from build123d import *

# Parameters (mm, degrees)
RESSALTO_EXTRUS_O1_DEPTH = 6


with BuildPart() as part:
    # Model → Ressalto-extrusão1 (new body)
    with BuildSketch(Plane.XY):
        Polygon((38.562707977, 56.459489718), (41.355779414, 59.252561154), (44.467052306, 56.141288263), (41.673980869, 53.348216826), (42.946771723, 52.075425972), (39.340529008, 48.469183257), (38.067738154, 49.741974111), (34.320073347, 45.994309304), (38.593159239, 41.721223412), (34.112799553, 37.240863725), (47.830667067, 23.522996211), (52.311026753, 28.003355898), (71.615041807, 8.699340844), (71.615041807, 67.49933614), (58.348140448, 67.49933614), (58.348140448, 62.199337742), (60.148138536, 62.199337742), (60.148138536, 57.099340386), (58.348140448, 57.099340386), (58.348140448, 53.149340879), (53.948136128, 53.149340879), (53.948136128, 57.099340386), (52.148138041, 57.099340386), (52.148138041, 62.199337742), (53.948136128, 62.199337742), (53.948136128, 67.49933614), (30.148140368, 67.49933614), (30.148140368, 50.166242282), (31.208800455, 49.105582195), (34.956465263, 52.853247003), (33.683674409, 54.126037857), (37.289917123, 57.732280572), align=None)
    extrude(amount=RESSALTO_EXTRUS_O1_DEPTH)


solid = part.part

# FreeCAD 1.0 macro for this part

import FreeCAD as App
import Part
import Sketcher
Q = App.Units.Quantity

doc = App.newDocument("Part")
body = doc.addObject("PartDesign::Body", "Body")

# Sketch on XY plane
sketch1 = body.newObject("Sketcher::SketchObject", "Sketch")
sketch1.AttachmentSupport = (doc.getObject("XY_Plane"), [""])
sketch1.MapMode = "FlatFace"
sketch1.addGeometry([
    Part.LineSegment(App.Vector(38.6, 56.5, 0), App.Vector(41.4, 59.3, 0)),  # 0
    Part.LineSegment(App.Vector(41.4, 59.3, 0), App.Vector(44.5, 56.1, 0)),  # 1
    Part.LineSegment(App.Vector(44.5, 56.1, 0), App.Vector(41.7, 53.3, 0)),  # 2
    Part.LineSegment(App.Vector(41.7, 53.3, 0), App.Vector(42.9, 52.1, 0)),  # 3
    Part.LineSegment(App.Vector(42.9, 52.1, 0), App.Vector(39.3, 48.5, 0)),  # 4
    Part.LineSegment(App.Vector(39.3, 48.5, 0), App.Vector(38.1, 49.7, 0)),  # 5
    Part.LineSegment(App.Vector(38.1, 49.7, 0), App.Vector(34.3, 46, 0)),  # 6
    Part.LineSegment(App.Vector(34.3, 46, 0), App.Vector(38.6, 41.7, 0)),  # 7
    Part.LineSegment(App.Vector(38.6, 41.7, 0), App.Vector(34.1, 37.2, 0)),  # 8
    Part.LineSegment(App.Vector(34.1, 37.2, 0), App.Vector(47.8, 23.5, 0)),  # 9
    Part.LineSegment(App.Vector(47.8, 23.5, 0), App.Vector(52.3, 28, 0)),  # 10
    Part.LineSegment(App.Vector(52.3, 28, 0), App.Vector(71.6, 8.7, 0)),  # 11
    Part.LineSegment(App.Vector(71.6, 8.7, 0), App.Vector(71.6, 67.5, 0)),  # 12
    Part.LineSegment(App.Vector(71.6, 67.5, 0), App.Vector(58.3, 67.5, 0)),  # 13
    Part.LineSegment(App.Vector(58.3, 67.5, 0), App.Vector(58.3, 62.2, 0)),  # 14
    Part.LineSegment(App.Vector(58.3, 62.2, 0), App.Vector(60.1, 62.2, 0)),  # 15
    Part.LineSegment(App.Vector(60.1, 62.2, 0), App.Vector(60.1, 57.1, 0)),  # 16
    Part.LineSegment(App.Vector(60.1, 57.1, 0), App.Vector(58.3, 57.1, 0)),  # 17
    Part.LineSegment(App.Vector(58.3, 57.1, 0), App.Vector(58.3, 53.1, 0)),  # 18
    Part.LineSegment(App.Vector(58.3, 53.1, 0), App.Vector(53.9, 53.1, 0)),  # 19
    Part.LineSegment(App.Vector(53.9, 53.1, 0), App.Vector(53.9, 57.1, 0)),  # 20
    Part.LineSegment(App.Vector(53.9, 57.1, 0), App.Vector(52.1, 57.1, 0)),  # 21
    Part.LineSegment(App.Vector(52.1, 57.1, 0), App.Vector(52.1, 62.2, 0)),  # 22
    Part.LineSegment(App.Vector(52.1, 62.2, 0), App.Vector(53.9, 62.2, 0)),  # 23
    Part.LineSegment(App.Vector(53.9, 62.2, 0), App.Vector(53.9, 67.5, 0)),  # 24
    Part.LineSegment(App.Vector(53.9, 67.5, 0), App.Vector(30.1, 67.5, 0)),  # 25
    Part.LineSegment(App.Vector(30.1, 67.5, 0), App.Vector(30.1, 50.2, 0)),  # 26
    Part.LineSegment(App.Vector(30.1, 50.2, 0), App.Vector(31.2, 49.1, 0)),  # 27
    Part.LineSegment(App.Vector(31.2, 49.1, 0), App.Vector(35, 52.9, 0)),  # 28
    Part.LineSegment(App.Vector(35, 52.9, 0), App.Vector(33.7, 54.1, 0)),  # 29
    Part.LineSegment(App.Vector(33.7, 54.1, 0), App.Vector(37.3, 57.7, 0)),  # 30
    Part.LineSegment(App.Vector(37.3, 57.7, 0), App.Vector(38.6, 56.5, 0)),  # 31
], False)
sketch1.addConstraint([
    Sketcher.Constraint("Coincident", 0, 2, 1, 1),
    Sketcher.Constraint("Coincident", 1, 2, 2, 1),
    Sketcher.Constraint("Coincident", 2, 2, 3, 1),
    Sketcher.Constraint("Coincident", 3, 2, 4, 1),
    Sketcher.Constraint("Coincident", 4, 2, 5, 1),
    Sketcher.Constraint("Coincident", 5, 2, 6, 1),
    Sketcher.Constraint("Coincident", 6, 2, 7, 1),
    Sketcher.Constraint("Coincident", 7, 2, 8, 1),
    Sketcher.Constraint("Coincident", 8, 2, 9, 1),
    Sketcher.Constraint("Coincident", 9, 2, 10, 1),
    Sketcher.Constraint("Coincident", 10, 2, 11, 1),
    Sketcher.Constraint("Coincident", 11, 2, 12, 1),
    Sketcher.Constraint("Coincident", 12, 2, 13, 1),
    Sketcher.Constraint("Coincident", 13, 2, 14, 1),
    Sketcher.Constraint("Coincident", 14, 2, 15, 1),
    Sketcher.Constraint("Coincident", 15, 2, 16, 1),
    Sketcher.Constraint("Coincident", 16, 2, 17, 1),
    Sketcher.Constraint("Coincident", 17, 2, 18, 1),
    Sketcher.Constraint("Coincident", 18, 2, 19, 1),
    Sketcher.Constraint("Coincident", 19, 2, 20, 1),
    Sketcher.Constraint("Coincident", 20, 2, 21, 1),
    Sketcher.Constraint("Coincident", 21, 2, 22, 1),
    Sketcher.Constraint("Coincident", 22, 2, 23, 1),
    Sketcher.Constraint("Coincident", 23, 2, 24, 1),
    Sketcher.Constraint("Coincident", 24, 2, 25, 1),
    Sketcher.Constraint("Coincident", 25, 2, 26, 1),
    Sketcher.Constraint("Coincident", 26, 2, 27, 1),
    Sketcher.Constraint("Coincident", 27, 2, 28, 1),
    Sketcher.Constraint("Coincident", 28, 2, 29, 1),
    Sketcher.Constraint("Coincident", 29, 2, 30, 1),
    Sketcher.Constraint("Coincident", 30, 2, 31, 1),
    Sketcher.Constraint("Coincident", 31, 2, 0, 1),
    Sketcher.Constraint("Vertical", 12),
    Sketcher.Constraint("Horizontal", 13),
    Sketcher.Constraint("Vertical", 14),
    Sketcher.Constraint("Horizontal", 15),
    Sketcher.Constraint("Vertical", 16),
    Sketcher.Constraint("Horizontal", 17),
    Sketcher.Constraint("Vertical", 18),
    Sketcher.Constraint("Horizontal", 19),
    Sketcher.Constraint("Vertical", 20),
    Sketcher.Constraint("Horizontal", 21),
    Sketcher.Constraint("Vertical", 22),
    Sketcher.Constraint("Horizontal", 23),
    Sketcher.Constraint("Vertical", 24),
    Sketcher.Constraint("Horizontal", 25),
    Sketcher.Constraint("Vertical", 26),
    Sketcher.Constraint("Perpendicular", 0, 1),
    Sketcher.Constraint("Perpendicular", 1, 2),
    Sketcher.Constraint("Perpendicular", 2, 3),
    Sketcher.Constraint("Perpendicular", 3, 4),
    Sketcher.Constraint("Perpendicular", 4, 5),
    Sketcher.Constraint("Perpendicular", 5, 6),
    Sketcher.Constraint("Perpendicular", 6, 7),
    Sketcher.Constraint("Perpendicular", 7, 8),
    Sketcher.Constraint("Perpendicular", 8, 9),
    Sketcher.Constraint("Perpendicular", 9, 10),
    Sketcher.Constraint("Perpendicular", 10, 11),
    Sketcher.Constraint("Parallel", 11, 27),
    Sketcher.Constraint("Perpendicular", 27, 28),
    Sketcher.Constraint("Perpendicular", 28, 29),
    Sketcher.Constraint("Perpendicular", 29, 30),
    Sketcher.Constraint("Perpendicular", 30, 31),
    Sketcher.Constraint("Horizontal", 17, 2, 20, 2),
    Sketcher.Constraint("Horizontal", 15, 2, 22, 2),
    Sketcher.Constraint("Horizontal", 13, 2, 24, 2),
    Sketcher.Constraint("Vertical", 14, 2, 17, 2),
    Sketcher.Constraint("Vertical", 20, 2, 23, 2),
    Sketcher.Constraint("Equal", 17, 21),
    Sketcher.Constraint("Equal", 0, 2),
    Sketcher.Constraint("Equal", 3, 5),
    Sketcher.Constraint("Equal", 8, 10),
    Sketcher.Constraint("Equal", 6, 28),
    Sketcher.Constraint("Equal", 5, 29),
    Sketcher.Constraint("Equal", 4, 30),
    Sketcher.Constraint("Equal", 29, 31),
    Sketcher.Constraint("Angle", 0, Q("45 deg")),
    Sketcher.Constraint("DistanceX", 15, 1, 15, 2, 1.799998),
    Sketcher.Constraint("DistanceY", 14, 2, 14, 1, 5.299998),
    Sketcher.Constraint("DistanceX", 22, 2, 15, 2, 8.0),
    Sketcher.Constraint("Distance", 3, 1.799998),
    Sketcher.Constraint("Distance", 6, 5.299998),
    Sketcher.Constraint("Distance", 11, 27.3),
    Sketcher.Constraint("Distance", 27, 1.5),
    Sketcher.Constraint("DistanceY", 18, 2, 18, 1, 3.95),
    Sketcher.Constraint("Distance", 0, 3.95),
    Sketcher.Constraint("DistanceX", 13, 2, 13, 1, 13.266901),
    Sketcher.Constraint("DistanceX", -1, 1, 8, 2, 34.1128),
    Sketcher.Constraint("DistanceX", -1, 1, 27, 2, 31.2088),
    Sketcher.Constraint("DistanceX", 0, 2, 2, 2, 0.318201),
    Sketcher.Constraint("DistanceX", 6, 2, 3, 2, 8.626698),
    Sketcher.Constraint("DistanceX", 25, 2, 25, 1, 23.799996),
    Sketcher.Constraint("DistanceY", 12, 1, 12, 2, 58.799995),
    Sketcher.Constraint("DistanceY", 16, 2, 16, 1, 5.099997),
    Sketcher.Constraint("DistanceY", -1, 1, 0, 2, 59.252561),
    Sketcher.Constraint("DistanceX", -1, 1, 7, 2, 38.593159),
])
pad1 = body.newObject("PartDesign::Pad", "Pad")
pad1.Profile = sketch1
pad1.Length = 6

doc.recompute()
